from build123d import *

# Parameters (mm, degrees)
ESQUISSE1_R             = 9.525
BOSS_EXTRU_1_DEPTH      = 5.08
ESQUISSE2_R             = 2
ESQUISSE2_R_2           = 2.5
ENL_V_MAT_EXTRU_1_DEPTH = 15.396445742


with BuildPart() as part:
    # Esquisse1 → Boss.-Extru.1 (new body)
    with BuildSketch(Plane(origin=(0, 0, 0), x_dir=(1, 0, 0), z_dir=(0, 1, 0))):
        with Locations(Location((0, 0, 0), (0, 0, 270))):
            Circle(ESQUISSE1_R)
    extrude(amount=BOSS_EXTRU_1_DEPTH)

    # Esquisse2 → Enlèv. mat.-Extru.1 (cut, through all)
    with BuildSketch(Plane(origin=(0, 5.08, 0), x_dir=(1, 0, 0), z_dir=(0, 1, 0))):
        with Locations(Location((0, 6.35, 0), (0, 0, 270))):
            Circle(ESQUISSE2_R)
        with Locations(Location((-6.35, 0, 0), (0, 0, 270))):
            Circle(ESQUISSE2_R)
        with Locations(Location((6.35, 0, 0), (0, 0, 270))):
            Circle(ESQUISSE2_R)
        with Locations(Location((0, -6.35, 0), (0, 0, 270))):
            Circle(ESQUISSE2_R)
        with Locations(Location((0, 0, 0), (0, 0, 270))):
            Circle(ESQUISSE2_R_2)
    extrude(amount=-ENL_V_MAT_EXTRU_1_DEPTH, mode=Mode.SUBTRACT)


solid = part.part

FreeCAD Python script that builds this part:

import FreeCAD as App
import Part
import Sketcher

doc = App.newDocument("Part")
body = doc.addObject("PartDesign::Body", "Body")

sketch1 = body.newObject("Sketcher::SketchObject", "Sketch")
sketch1.AttachmentSupport = (doc.getObject("XZ_Plane"), [""])
sketch1.MapMode = "FlatFace"
sketch1.addGeometry(Part.Circle(App.Vector(0, 0, 0), App.Vector(0, 0, 1), 9.525), False)
sketch1.addConstraint(Sketcher.Constraint("Coincident", 0, 3, -1, 1))
sketch1.addConstraint(Sketcher.Constraint("Diameter", 0, 19.05))
pad1 = body.newObject("PartDesign::Pad", "Pad")
pad1.Profile = sketch1
pad1.Length = 5.08
pad1.Reversed = True

sketch2 = body.newObject("Sketcher::SketchObject", "Sketch001")
sketch2.AttachmentSupport = (doc.getObject("XZ_Plane"), [""])
sketch2.MapMode = "FlatFace"
sketch2.AttachmentOffset = App.Placement(App.Vector(0, 0, -5.08), App.Rotation())
sketch2.addGeometry(Part.Circle(App.Vector(0, -6.35, 0), App.Vector(0, 0, 1), 2), False)
sketch2.addGeometry(Part.Circle(App.Vector(-6.35, 0, 0), App.Vector(0, 0, 1), 2), False)
sketch2.addGeometry(Part.Circle(App.Vector(6.35, 0, 0), App.Vector(0, 0, 1), 2), False)
sketch2.addGeometry(Part.Circle(App.Vector(0, 6.35, 0), App.Vector(0, 0, 1), 2), False)
sketch2.addGeometry(Part.Circle(App.Vector(0, 0, 0), App.Vector(0, 0, 1), 2.5), False)
sketch2.addConstraint(Sketcher.Constraint("Coincident", 4, 3, -1, 1))
sketch2.addConstraint(Sketcher.Constraint("Equal", 0, 1))
sketch2.addConstraint(Sketcher.Constraint("Equal", 1, 2))
sketch2.addConstraint(Sketcher.Constraint("Equal", 2, 3))
sketch2.addConstraint(Sketcher.Constraint("Symmetric", 1, 3, 2, 3, -1, 1))
sketch2.addConstraint(Sketcher.Constraint("Symmetric", 0, 3, 3, 3, -1, 1))
sketch2.addConstraint(Sketcher.Constraint("PointOnObject", 0, 3, -2))
sketch2.addConstraint(Sketcher.Constraint("PointOnObject", 1, 3, -1))
sketch2.addConstraint(Sketcher.Constraint("Diameter", 0, 4.0))
sketch2.addConstraint(Sketcher.Constraint("Diameter", 4, 5.0))
sketch2.addConstraint(Sketcher.Constraint("DistanceX", 1, 3, 2, 3, 12.7))
sketch2.addConstraint(Sketcher.Constraint("DistanceY", 0, 3, 3, 3, 12.7))
pocket1 = body.newObject("PartDesign::Pocket", "Pocket")
pocket1.Profile = sketch2
pocket1.Type = "ThroughAll"
pocket1.Reversed = True

doc.recompute()
